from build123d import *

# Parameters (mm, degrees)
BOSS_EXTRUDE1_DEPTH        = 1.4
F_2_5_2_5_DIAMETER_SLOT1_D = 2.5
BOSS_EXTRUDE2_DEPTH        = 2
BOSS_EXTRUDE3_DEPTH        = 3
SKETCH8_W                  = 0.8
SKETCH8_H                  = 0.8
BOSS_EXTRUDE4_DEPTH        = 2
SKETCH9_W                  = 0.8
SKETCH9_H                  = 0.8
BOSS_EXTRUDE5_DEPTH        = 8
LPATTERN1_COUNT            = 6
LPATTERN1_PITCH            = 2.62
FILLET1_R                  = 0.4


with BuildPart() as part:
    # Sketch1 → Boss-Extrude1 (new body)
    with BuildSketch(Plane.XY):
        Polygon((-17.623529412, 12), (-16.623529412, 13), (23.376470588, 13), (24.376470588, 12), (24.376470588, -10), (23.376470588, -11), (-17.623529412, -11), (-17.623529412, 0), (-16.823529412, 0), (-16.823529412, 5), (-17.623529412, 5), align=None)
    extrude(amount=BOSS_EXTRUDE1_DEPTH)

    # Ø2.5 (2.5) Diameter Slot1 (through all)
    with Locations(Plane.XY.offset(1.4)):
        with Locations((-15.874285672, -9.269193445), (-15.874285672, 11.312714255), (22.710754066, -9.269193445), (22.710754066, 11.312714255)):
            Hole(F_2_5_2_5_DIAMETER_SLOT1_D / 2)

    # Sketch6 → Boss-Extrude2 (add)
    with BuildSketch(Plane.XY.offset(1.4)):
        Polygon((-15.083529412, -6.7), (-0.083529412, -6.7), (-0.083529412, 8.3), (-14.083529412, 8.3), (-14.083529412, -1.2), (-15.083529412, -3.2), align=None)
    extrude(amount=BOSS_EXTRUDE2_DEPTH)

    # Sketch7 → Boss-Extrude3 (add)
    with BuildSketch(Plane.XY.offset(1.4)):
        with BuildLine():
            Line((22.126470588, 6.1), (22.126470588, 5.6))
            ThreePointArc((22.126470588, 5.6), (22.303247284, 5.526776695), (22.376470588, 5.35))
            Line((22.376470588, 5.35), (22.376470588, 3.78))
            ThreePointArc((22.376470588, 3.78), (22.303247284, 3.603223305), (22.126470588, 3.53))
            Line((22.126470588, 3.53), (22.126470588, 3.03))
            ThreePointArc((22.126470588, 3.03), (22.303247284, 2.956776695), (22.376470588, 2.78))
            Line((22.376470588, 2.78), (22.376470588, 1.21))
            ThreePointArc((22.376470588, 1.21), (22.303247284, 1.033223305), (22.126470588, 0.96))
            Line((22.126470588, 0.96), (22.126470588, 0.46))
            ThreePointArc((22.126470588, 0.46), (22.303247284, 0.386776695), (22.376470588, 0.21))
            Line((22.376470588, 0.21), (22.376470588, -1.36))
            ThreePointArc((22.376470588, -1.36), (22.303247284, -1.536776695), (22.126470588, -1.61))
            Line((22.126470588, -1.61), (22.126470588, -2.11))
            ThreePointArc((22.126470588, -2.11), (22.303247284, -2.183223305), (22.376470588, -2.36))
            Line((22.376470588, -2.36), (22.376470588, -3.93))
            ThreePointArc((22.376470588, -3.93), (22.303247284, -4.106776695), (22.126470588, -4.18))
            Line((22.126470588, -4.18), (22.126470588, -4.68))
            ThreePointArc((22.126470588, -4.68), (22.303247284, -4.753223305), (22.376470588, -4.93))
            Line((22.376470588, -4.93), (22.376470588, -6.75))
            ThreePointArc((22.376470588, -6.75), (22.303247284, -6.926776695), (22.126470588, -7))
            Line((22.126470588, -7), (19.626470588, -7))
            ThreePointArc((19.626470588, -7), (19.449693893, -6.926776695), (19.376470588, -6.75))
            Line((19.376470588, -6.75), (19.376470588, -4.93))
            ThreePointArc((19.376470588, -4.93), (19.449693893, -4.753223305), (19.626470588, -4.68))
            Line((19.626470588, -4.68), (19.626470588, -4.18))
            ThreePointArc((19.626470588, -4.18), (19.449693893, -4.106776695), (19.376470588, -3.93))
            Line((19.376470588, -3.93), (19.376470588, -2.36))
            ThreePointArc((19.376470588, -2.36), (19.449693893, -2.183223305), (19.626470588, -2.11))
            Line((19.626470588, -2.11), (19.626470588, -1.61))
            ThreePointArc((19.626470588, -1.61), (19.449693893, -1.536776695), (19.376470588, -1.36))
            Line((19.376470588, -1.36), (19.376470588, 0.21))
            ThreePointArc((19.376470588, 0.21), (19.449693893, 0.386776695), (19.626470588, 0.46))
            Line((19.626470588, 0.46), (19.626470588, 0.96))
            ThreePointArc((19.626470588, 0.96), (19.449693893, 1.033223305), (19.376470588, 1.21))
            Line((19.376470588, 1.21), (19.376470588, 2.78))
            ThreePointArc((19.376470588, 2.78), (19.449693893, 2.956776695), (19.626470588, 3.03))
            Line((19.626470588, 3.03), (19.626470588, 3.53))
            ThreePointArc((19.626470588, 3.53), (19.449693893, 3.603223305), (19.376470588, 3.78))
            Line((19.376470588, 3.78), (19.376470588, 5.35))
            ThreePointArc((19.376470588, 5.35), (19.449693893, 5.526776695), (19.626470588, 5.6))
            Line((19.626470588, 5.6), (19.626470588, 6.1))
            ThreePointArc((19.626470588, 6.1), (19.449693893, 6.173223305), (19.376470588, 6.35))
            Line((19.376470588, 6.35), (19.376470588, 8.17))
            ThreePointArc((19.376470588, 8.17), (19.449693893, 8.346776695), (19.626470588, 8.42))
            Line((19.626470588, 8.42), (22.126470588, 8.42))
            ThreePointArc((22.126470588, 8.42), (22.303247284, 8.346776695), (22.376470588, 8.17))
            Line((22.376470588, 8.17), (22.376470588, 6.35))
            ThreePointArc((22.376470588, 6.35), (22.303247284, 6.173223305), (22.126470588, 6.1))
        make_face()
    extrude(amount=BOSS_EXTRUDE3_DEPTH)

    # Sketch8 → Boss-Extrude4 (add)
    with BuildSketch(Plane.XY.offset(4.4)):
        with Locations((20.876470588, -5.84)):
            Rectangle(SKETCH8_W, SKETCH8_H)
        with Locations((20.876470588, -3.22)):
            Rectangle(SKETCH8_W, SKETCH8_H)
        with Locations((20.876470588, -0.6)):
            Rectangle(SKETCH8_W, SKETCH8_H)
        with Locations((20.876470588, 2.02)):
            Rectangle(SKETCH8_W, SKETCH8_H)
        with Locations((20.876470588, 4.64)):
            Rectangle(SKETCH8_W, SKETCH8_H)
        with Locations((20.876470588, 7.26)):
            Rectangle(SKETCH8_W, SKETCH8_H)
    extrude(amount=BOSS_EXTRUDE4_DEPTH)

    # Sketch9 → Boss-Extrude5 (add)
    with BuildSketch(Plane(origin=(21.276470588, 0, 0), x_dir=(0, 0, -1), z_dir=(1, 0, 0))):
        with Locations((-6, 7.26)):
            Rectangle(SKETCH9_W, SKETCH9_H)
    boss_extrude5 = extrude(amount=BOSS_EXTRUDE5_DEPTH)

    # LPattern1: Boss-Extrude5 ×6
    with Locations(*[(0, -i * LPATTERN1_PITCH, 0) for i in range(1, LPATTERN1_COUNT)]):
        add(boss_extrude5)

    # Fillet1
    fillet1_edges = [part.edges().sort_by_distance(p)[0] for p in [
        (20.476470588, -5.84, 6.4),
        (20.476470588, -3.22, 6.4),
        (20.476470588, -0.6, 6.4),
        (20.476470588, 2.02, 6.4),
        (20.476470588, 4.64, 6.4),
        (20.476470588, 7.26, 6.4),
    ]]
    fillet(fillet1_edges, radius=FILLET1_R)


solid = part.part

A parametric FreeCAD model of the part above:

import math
import FreeCAD as App
import Part
import Sketcher


def edges_at(feature, points):
    """Names of the edges that pass closest to the given points."""
    edges = feature.Shape.Edges
    near = lambda p: min(range(len(edges)), key=lambda i: edges[i].distToShape(Part.Vertex(*p))[0])
    return sorted({f"Edge{near(p) + 1}" for p in points})


def add_polygon(sketch, points):
    """Adds a closed chain of lines whose ends are joined by coincident constraints."""
    first, n = sketch.GeometryCount, len(points)
    for a, b in zip(points, points[1:] + points[:1]):
        sketch.addGeometry(Part.LineSegment(App.Vector(*a, 0), App.Vector(*b, 0)), False)
    for i in range(n):
        sketch.addConstraint(Sketcher.Constraint("Coincident", first + i, 2, first + (i + 1) % n, 1))

doc = App.newDocument("Part")
body = doc.addObject("PartDesign::Body", "Body")

# Sketch on XY plane
sketch1 = body.newObject("Sketcher::SketchObject", "Sketch")
sketch1.AttachmentSupport = (doc.getObject("XY_Plane"), [""])
sketch1.MapMode = "FlatFace"
add_polygon(sketch1, [(-16.623529, 13), (-17.623529, 12), (-17.623529, 5), (-16.823529, 5), (-16.823529, 0), (-17.623529, 0), (-17.623529, -11), (23.376471, -11), (24.376471, -10), (24.376471, 12), (23.376471, 13)])  # lines 0-10
sketch1.addConstraint(Sketcher.Constraint("Vertical", 1))
sketch1.addConstraint(Sketcher.Constraint("Horizontal", 2))
sketch1.addConstraint(Sketcher.Constraint("Vertical", 3))
sketch1.addConstraint(Sketcher.Constraint("Horizontal", 4))
sketch1.addConstraint(Sketcher.Constraint("Vertical", 5))
sketch1.addConstraint(Sketcher.Constraint("Horizontal", 6))
sketch1.addConstraint(Sketcher.Constraint("Vertical", 8))
sketch1.addConstraint(Sketcher.Constraint("Horizontal", 10))
sketch1.addConstraint(Sketcher.Constraint("PointOnObject", 3, 2, -1))
sketch1.addConstraint(Sketcher.Constraint("Parallel", 0, 7))
sketch1.addConstraint(Sketcher.Constraint("Perpendicular", 7, 9))
sketch1.addConstraint(Sketcher.Constraint("Horizontal", 0, 2, 8, 2))
sketch1.addConstraint(Sketcher.Constraint("Vertical", 1, 2, 4, 2))
sketch1.addConstraint(Sketcher.Constraint("Vertical", 6, 2, 9, 2))
sketch1.addConstraint(Sketcher.Constraint("Equal", 0, 7))
sketch1.addConstraint(Sketcher.Constraint("DistanceX", 6, 1, 6, 2, 41.0))
sketch1.addConstraint(Sketcher.Constraint("DistanceX", 10, 2, 10, 1, 40.0))
sketch1.addConstraint(Sketcher.Constraint("DistanceY", 1, 2, 1, 1, 7.0))
sketch1.addConstraint(Sketcher.Constraint("DistanceY", 3, 2, 3, 1, 5.0))
sketch1.addConstraint(Sketcher.Constraint("DistanceY", 5, 2, 5, 1, 11.0))
sketch1.addConstraint(Sketcher.Constraint("DistanceX", 2, 1, 2, 2, 0.8))
sketch1.addConstraint(Sketcher.Constraint("DistanceX", 0, 2, -1, 1, 17.623529))
pad1 = body.newObject("PartDesign::Pad", "Pad")
pad1.Profile = sketch1
pad1.Length = 1.4

# Sketch on XY plane
sketch2 = body.newObject("Sketcher::SketchObject", "Sketch001")
sketch2.AttachmentSupport = (doc.getObject("XY_Plane"), [""])
sketch2.MapMode = "FlatFace"
sketch2.AttachmentOffset = App.Placement(App.Vector(0, 0, 1.4), App.Rotation())
sketch2.addGeometry(Part.Circle(App.Vector(-15.874286, -9.269193, 0), App.Vector(0, 0, 1), 1.25), False)
sketch2.addGeometry(Part.Circle(App.Vector(-15.874286, 11.312714, 0), App.Vector(0, 0, 1), 1.25), False)
sketch2.addGeometry(Part.Circle(App.Vector(22.710754, -9.269193, 0), App.Vector(0, 0, 1), 1.25), False)
sketch2.addGeometry(Part.Circle(App.Vector(22.710754, 11.312714, 0), App.Vector(0, 0, 1), 1.25), False)
sketch2.addConstraint(Sketcher.Constraint("Equal", 0, 1))
sketch2.addConstraint(Sketcher.Constraint("Equal", 1, 2))
sketch2.addConstraint(Sketcher.Constraint("Equal", 2, 3))
sketch2.addConstraint(Sketcher.Constraint("Horizontal", 0, 3, 2, 3))
sketch2.addConstraint(Sketcher.Constraint("Horizontal", 1, 3, 3, 3))
sketch2.addConstraint(Sketcher.Constraint("Vertical", 0, 3, 1, 3))
sketch2.addConstraint(Sketcher.Constraint("Vertical", 2, 3, 3, 3))
sketch2.addConstraint(Sketcher.Constraint("Diameter", 0, 2.5))
sketch2.addConstraint(Sketcher.Constraint("DistanceX", 0, 3, 2, 3, 38.58504))
sketch2.addConstraint(Sketcher.Constraint("DistanceX", 0, 3, -1, 1, 15.874286))
sketch2.addConstraint(Sketcher.Constraint("DistanceY", 0, 3, -1, 1, 9.269193))
sketch2.addConstraint(Sketcher.Constraint("DistanceY", -1, 1, 1, 3, 11.312714))
doc.recompute()
hole = body.newObject("PartDesign::Hole", "Hole")
hole.Profile = sketch2
hole.ThreadType = "None"
hole.Diameter = 2.5
hole.DepthType = "ThroughAll"

# Sketch on XY plane
sketch3 = body.newObject("Sketcher::SketchObject", "Sketch002")
sketch3.AttachmentSupport = (doc.getObject("XY_Plane"), [""])
sketch3.MapMode = "FlatFace"
sketch3.AttachmentOffset = App.Placement(App.Vector(0, 0, 1.4), App.Rotation())
add_polygon(sketch3, [(-15.083529, -6.7), (-0.083529, -6.7), (-0.083529, 8.3), (-14.083529, 8.3), (-14.083529, -1.2), (-15.083529, -3.2)])  # lines 0-5
sketch3.addConstraint(Sketcher.Constraint("Horizontal", 0))
sketch3.addConstraint(Sketcher.Constraint("Vertical", 1))
sketch3.addConstraint(Sketcher.Constraint("Horizontal", 2))
sketch3.addConstraint(Sketcher.Constraint("Vertical", 3))
sketch3.addConstraint(Sketcher.Constraint("Vertical", 5))
sketch3.addConstraint(Sketcher.Constraint("Equal", 0, 1))
sketch3.addConstraint(Sketcher.Constraint("DistanceX", 0, 1, 0, 2, 15.0))
sketch3.addConstraint(Sketcher.Constraint("DistanceX", 2, 2, 2, 1, 14.0))
sketch3.addConstraint(Sketcher.Constraint("DistanceY", 3, 2, 3, 1, 9.5))
sketch3.addConstraint(Sketcher.Constraint("DistanceY", 5, 2, 5, 1, 3.5))
sketch3.addConstraint(Sketcher.Constraint("DistanceY", 0, 2, -1, 1, 6.7))
sketch3.addConstraint(Sketcher.Constraint("DistanceX", 0, 2, -1, 1, 0.083529))
pad2 = body.newObject("PartDesign::Pad", "Pad001")
pad2.Profile = sketch3
pad2.Length = 2

# Sketch on XY plane
sketch4 = body.newObject("Sketcher::SketchObject", "Sketch003")
sketch4.AttachmentSupport = (doc.getObject("XY_Plane"), [""])
sketch4.MapMode = "FlatFace"
sketch4.AttachmentOffset = App.Placement(App.Vector(0, 0, 1.4), App.Rotation())
sketch4.addGeometry(Part.LineSegment(App.Vector(22.126471, 5.6, 0), App.Vector(22.126471, 6.1, 0)), False)
sketch4.addGeometry(Part.ArcOfCircle(Part.Circle(App.Vector(22.126471, 6.35, 0), App.Vector(0, 0, 1), 0.25), math.radians(-90), math.radians(0)), False)
sketch4.addGeometry(Part.LineSegment(App.Vector(22.376471, 6.35, 0), App.Vector(22.376471, 8.17, 0)), False)
sketch4.addGeometry(Part.ArcOfCircle(Part.Circle(App.Vector(22.126471, 8.17, 0), App.Vector(0, 0, 1), 0.25), math.radians(0), math.radians(90)), False)
sketch4.addGeometry(Part.LineSegment(App.Vector(22.126471, 8.42, 0), App.Vector(19.626471, 8.42, 0)), False)
sketch4.addGeometry(Part.ArcOfCircle(Part.Circle(App.Vector(19.626471, 8.17, 0), App.Vector(0, 0, 1), 0.25), math.radians(90), math.radians(180)), False)
sketch4.addGeometry(Part.LineSegment(App.Vector(19.376471, 8.17, 0), App.Vector(19.376471, 6.35, 0)), False)
sketch4.addGeometry(Part.ArcOfCircle(Part.Circle(App.Vector(19.626471, 6.35, 0), App.Vector(0, 0, 1), 0.25), math.radians(-180), math.radians(-90)), False)
sketch4.addGeometry(Part.LineSegment(App.Vector(19.626471, 6.1, 0), App.Vector(19.626471, 5.6, 0)), False)
sketch4.addGeometry(Part.ArcOfCircle(Part.Circle(App.Vector(19.626471, 5.35, 0), App.Vector(0, 0, 1), 0.25), math.radians(90), math.radians(180)), False)
sketch4.addGeometry(Part.LineSegment(App.Vector(19.376471, 5.35, 0), App.Vector(19.376471, 3.78, 0)), False)
sketch4.addGeometry(Part.ArcOfCircle(Part.Circle(App.Vector(19.626471, 3.78, 0), App.Vector(0, 0, 1), 0.25), math.radians(-180), math.radians(-90)), False)
sketch4.addGeometry(Part.LineSegment(App.Vector(19.626471, 3.53, 0), App.Vector(19.626471, 3.03, 0)), False)
sketch4.addGeometry(Part.ArcOfCircle(Part.Circle(App.Vector(19.626471, 2.78, 0), App.Vector(0, 0, 1), 0.25), math.radians(90), math.radians(180)), False)
sketch4.addGeometry(Part.LineSegment(App.Vector(19.376471, 2.78, 0), App.Vector(19.376471, 1.21, 0)), False)
sketch4.addGeometry(Part.ArcOfCircle(Part.Circle(App.Vector(19.626471, 1.21, 0), App.Vector(0, 0, 1), 0.25), math.radians(-180), math.radians(-90)), False)
sketch4.addGeometry(Part.LineSegment(App.Vector(19.626471, 0.96, 0), App.Vector(19.626471, 0.46, 0)), False)
sketch4.addGeometry(Part.ArcOfCircle(Part.Circle(App.Vector(19.626471, 0.21, 0), App.Vector(0, 0, 1), 0.25), math.radians(90), math.radians(180)), False)
sketch4.addGeometry(Part.LineSegment(App.Vector(19.376471, 0.21, 0), App.Vector(19.376471, -1.36, 0)), False)
sketch4.addGeometry(Part.ArcOfCircle(Part.Circle(App.Vector(19.626471, -1.36, 0), App.Vector(0, 0, 1), 0.25), math.radians(-180), math.radians(-90)), False)
sketch4.addGeometry(Part.LineSegment(App.Vector(19.626471, -1.61, 0), App.Vector(19.626471, -2.11, 0)), False)
sketch4.addGeometry(Part.ArcOfCircle(Part.Circle(App.Vector(19.626471, -2.36, 0), App.Vector(0, 0, 1), 0.25), math.radians(90), math.radians(180)), False)
sketch4.addGeometry(Part.LineSegment(App.Vector(19.376471, -2.36, 0), App.Vector(19.376471, -3.93, 0)), False)
sketch4.addGeometry(Part.ArcOfCircle(Part.Circle(App.Vector(19.626471, -3.93, 0), App.Vector(0, 0, 1), 0.25), math.radians(-180), math.radians(-90)), False)
sketch4.addGeometry(Part.LineSegment(App.Vector(19.626471, -4.18, 0), App.Vector(19.626471, -4.68, 0)), False)
sketch4.addGeometry(Part.ArcOfCircle(Part.Circle(App.Vector(19.626471, -4.93, 0), App.Vector(0, 0, 1), 0.25), math.radians(90), math.radians(180)), False)
sketch4.addGeometry(Part.LineSegment(App.Vector(19.376471, -4.93, 0), App.Vector(19.376471, -6.75, 0)), False)
sketch4.addGeometry(Part.ArcOfCircle(Part.Circle(App.Vector(19.626471, -6.75, 0), App.Vector(0, 0, 1), 0.25), math.radians(-180), math.radians(-90)), False)
sketch4.addGeometry(Part.LineSegment(App.Vector(19.626471, -7, 0), App.Vector(22.126471, -7, 0)), False)
sketch4.addGeometry(Part.ArcOfCircle(Part.Circle(App.Vector(22.126471, -6.75, 0), App.Vector(0, 0, 1), 0.25), math.radians(-90), math.radians(0)), False)
sketch4.addGeometry(Part.LineSegment(App.Vector(22.376471, -6.75, 0), App.Vector(22.376471, -4.93, 0)), False)
sketch4.addGeometry(Part.ArcOfCircle(Part.Circle(App.Vector(22.126471, -4.93, 0), App.Vector(0, 0, 1), 0.25), math.radians(0), math.radians(90)), False)
sketch4.addGeometry(Part.LineSegment(App.Vector(22.126471, -4.68, 0), App.Vector(22.126471, -4.18, 0)), False)
sketch4.addGeometry(Part.ArcOfCircle(Part.Circle(App.Vector(22.126471, -3.93, 0), App.Vector(0, 0, 1), 0.25), math.radians(-90), math.radians(0)), False)
sketch4.addGeometry(Part.LineSegment(App.Vector(22.376471, -3.93, 0), App.Vector(22.376471, -2.36, 0)), False)
sketch4.addGeometry(Part.ArcOfCircle(Part.Circle(App.Vector(22.126471, -2.36, 0), App.Vector(0, 0, 1), 0.25), math.radians(0), math.radians(90)), False)
sketch4.addGeometry(Part.LineSegment(App.Vector(22.126471, -2.11, 0), App.Vector(22.126471, -1.61, 0)), False)
sketch4.addGeometry(Part.ArcOfCircle(Part.Circle(App.Vector(22.126471, -1.36, 0), App.Vector(0, 0, 1), 0.25), math.radians(-90), math.radians(0)), False)
sketch4.addGeometry(Part.LineSegment(App.Vector(22.376471, -1.36, 0), App.Vector(22.376471, 0.21, 0)), False)
sketch4.addGeometry(Part.ArcOfCircle(Part.Circle(App.Vector(22.126471, 0.21, 0), App.Vector(0, 0, 1), 0.25), math.radians(0), math.radians(90)), False)
sketch4.addGeometry(Part.LineSegment(App.Vector(22.126471, 0.46, 0), App.Vector(22.126471, 0.96, 0)), False)
sketch4.addGeometry(Part.ArcOfCircle(Part.Circle(App.Vector(22.126471, 1.21, 0), App.Vector(0, 0, 1), 0.25), math.radians(-90), math.radians(0)), False)
sketch4.addGeometry(Part.LineSegment(App.Vector(22.376471, 1.21, 0), App.Vector(22.376471, 2.78, 0)), False)
sketch4.addGeometry(Part.ArcOfCircle(Part.Circle(App.Vector(22.126471, 2.78, 0), App.Vector(0, 0, 1), 0.25), math.radians(0), math.radians(90)), False)
sketch4.addGeometry(Part.LineSegment(App.Vector(22.126471, 3.03, 0), App.Vector(22.126471, 3.53, 0)), False)
sketch4.addGeometry(Part.ArcOfCircle(Part.Circle(App.Vector(22.126471, 3.78, 0), App.Vector(0, 0, 1), 0.25), math.radians(-90), math.radians(0)), False)
sketch4.addGeometry(Part.LineSegment(App.Vector(22.376471, 3.78, 0), App.Vector(22.376471, 5.35, 0)), False)
sketch4.addGeometry(Part.ArcOfCircle(Part.Circle(App.Vector(22.126471, 5.35, 0), App.Vector(0, 0, 1), 0.25), math.radians(0), math.radians(90)), False)
sketch4.addConstraint(Sketcher.Constraint("Coincident", 0, 2, 1, 1))
sketch4.addConstraint(Sketcher.Constraint("Tangent", 1, 2, 2, 1))
sketch4.addConstraint(Sketcher.Constraint("Tangent", 2, 2, 3, 1))
sketch4.addConstraint(Sketcher.Constraint("Tangent", 3, 2, 4, 1))
sketch4.addConstraint(Sketcher.Constraint("Tangent", 4, 2, 5, 1))
sketch4.addConstraint(Sketcher.Constraint("Tangent", 5, 2, 6, 1))
sketch4.addConstraint(Sketcher.Constraint("Tangent", 6, 2, 7, 1))
sketch4.addConstraint(Sketcher.Constraint("Coincident", 7, 2, 8, 1))
sketch4.addConstraint(Sketcher.Constraint("Coincident", 8, 2, 9, 1))
sketch4.addConstraint(Sketcher.Constraint("Tangent", 9, 2, 10, 1))
sketch4.addConstraint(Sketcher.Constraint("Tangent", 10, 2, 11, 1))
sketch4.addConstraint(Sketcher.Constraint("Coincident", 11, 2, 12, 1))
sketch4.addConstraint(Sketcher.Constraint("Coincident", 12, 2, 13, 1))
sketch4.addConstraint(Sketcher.Constraint("Tangent", 13, 2, 14, 1))
sketch4.addConstraint(Sketcher.Constraint("Tangent", 14, 2, 15, 1))
sketch4.addConstraint(Sketcher.Constraint("Coincident", 15, 2, 16, 1))
sketch4.addConstraint(Sketcher.Constraint("Coincident", 16, 2, 17, 1))
sketch4.addConstraint(Sketcher.Constraint("Tangent", 17, 2, 18, 1))
sketch4.addConstraint(Sketcher.Constraint("Tangent", 18, 2, 19, 1))
sketch4.addConstraint(Sketcher.Constraint("Coincident", 19, 2, 20, 1))
sketch4.addConstraint(Sketcher.Constraint("Coincident", 20, 2, 21, 1))
sketch4.addConstraint(Sketcher.Constraint("Tangent", 21, 2, 22, 1))
sketch4.addConstraint(Sketcher.Constraint("Tangent", 22, 2, 23, 1))
sketch4.addConstraint(Sketcher.Constraint("Coincident", 23, 2, 24, 1))
sketch4.addConstraint(Sketcher.Constraint("Coincident", 24, 2, 25, 1))
sketch4.addConstraint(Sketcher.Constraint("Tangent", 25, 2, 26, 1))
sketch4.addConstraint(Sketcher.Constraint("Tangent", 26, 2, 27, 1))
sketch4.addConstraint(Sketcher.Constraint("Tangent", 27, 2, 28, 1))
sketch4.addConstraint(Sketcher.Constraint("Tangent", 28, 2, 29, 1))
sketch4.addConstraint(Sketcher.Constraint("Tangent", 29, 2, 30, 1))
sketch4.addConstraint(Sketcher.Constraint("Tangent", 30, 2, 31, 1))
sketch4.addConstraint(Sketcher.Constraint("Coincident", 31, 2, 32, 1))
sketch4.addConstraint(Sketcher.Constraint("Coincident", 32, 2, 33, 1))
sketch4.addConstraint(Sketcher.Constraint("Tangent", 33, 2, 34, 1))
sketch4.addConstraint(Sketcher.Constraint("Tangent", 34, 2, 35, 1))
sketch4.addConstraint(Sketcher.Constraint("Coincident", 35, 2, 36, 1))
sketch4.addConstraint(Sketcher.Constraint("Coincident", 36, 2, 37, 1))
sketch4.addConstraint(Sketcher.Constraint("Tangent", 37, 2, 38, 1))
sketch4.addConstraint(Sketcher.Constraint("Tangent", 38, 2, 39, 1))
sketch4.addConstraint(Sketcher.Constraint("Coincident", 39, 2, 40, 1))
sketch4.addConstraint(Sketcher.Constraint("Coincident", 40, 2, 41, 1))
sketch4.addConstraint(Sketcher.Constraint("Tangent", 41, 2, 42, 1))
sketch4.addConstraint(Sketcher.Constraint("Tangent", 42, 2, 43, 1))
sketch4.addConstraint(Sketcher.Constraint("Coincident", 43, 2, 44, 1))
sketch4.addConstraint(Sketcher.Constraint("Coincident", 44, 2, 45, 1))
sketch4.addConstraint(Sketcher.Constraint("Tangent", 45, 2, 46, 1))
sketch4.addConstraint(Sketcher.Constraint("Tangent", 46, 2, 47, 1))
sketch4.addConstraint(Sketcher.Constraint("Coincident", 47, 2, 0, 1))
sketch4.addConstraint(Sketcher.Constraint("Vertical", 0))
sketch4.addConstraint(Sketcher.Constraint("Vertical", 2))
sketch4.addConstraint(Sketcher.Constraint("Horizontal", 4))
sketch4.addConstraint(Sketcher.Constraint("Vertical", 6))
sketch4.addConstraint(Sketcher.Constraint("Vertical", 8))
sketch4.addConstraint(Sketcher.Constraint("Vertical", 10))
sketch4.addConstraint(Sketcher.Constraint("Vertical", 12))
sketch4.addConstraint(Sketcher.Constraint("Vertical", 14))
sketch4.addConstraint(Sketcher.Constraint("Vertical", 16))
sketch4.addConstraint(Sketcher.Constraint("Vertical", 18))
sketch4.addConstraint(Sketcher.Constraint("Vertical", 20))
sketch4.addConstraint(Sketcher.Constraint("Vertical", 22))
sketch4.addConstraint(Sketcher.Constraint("Vertical", 24))
sketch4.addConstraint(Sketcher.Constraint("Vertical", 26))
sketch4.addConstraint(Sketcher.Constraint("Horizontal", 28))
sketch4.addConstraint(Sketcher.Constraint("Vertical", 30))
sketch4.addConstraint(Sketcher.Constraint("Vertical", 32))
sketch4.addConstraint(Sketcher.Constraint("Vertical", 34))
sketch4.addConstraint(Sketcher.Constraint("Vertical", 36))
sketch4.addConstraint(Sketcher.Constraint("Vertical", 38))
sketch4.addConstraint(Sketcher.Constraint("Vertical", 40))
sketch4.addConstraint(Sketcher.Constraint("Vertical", 42))
sketch4.addConstraint(Sketcher.Constraint("Vertical", 44))
sketch4.addConstraint(Sketcher.Constraint("Vertical", 46))
sketch4.addConstraint(Sketcher.Constraint("Equal", 1, 3))
sketch4.addConstraint(Sketcher.Constraint("Equal", 3, 5))
sketch4.addConstraint(Sketcher.Constraint("Equal", 5, 7))
sketch4.addConstraint(Sketcher.Constraint("Equal", 7, 9))
sketch4.addConstraint(Sketcher.Constraint("Equal", 9, 11))
sketch4.addConstraint(Sketcher.Constraint("Equal", 11, 13))
sketch4.addConstraint(Sketcher.Constraint("Equal", 13, 15))
sketch4.addConstraint(Sketcher.Constraint("Equal", 15, 17))
sketch4.addConstraint(Sketcher.Constraint("Equal", 17, 19))
sketch4.addConstraint(Sketcher.Constraint("Equal", 19, 21))
sketch4.addConstraint(Sketcher.Constraint("Equal", 21, 23))
sketch4.addConstraint(Sketcher.Constraint("Equal", 23, 25))
sketch4.addConstraint(Sketcher.Constraint("Equal", 25, 27))
sketch4.addConstraint(Sketcher.Constraint("Equal", 27, 29))
sketch4.addConstraint(Sketcher.Constraint("Equal", 29, 31))
sketch4.addConstraint(Sketcher.Constraint("Equal", 31, 33))
sketch4.addConstraint(Sketcher.Constraint("Equal", 33, 35))
sketch4.addConstraint(Sketcher.Constraint("Equal", 35, 37))
sketch4.addConstraint(Sketcher.Constraint("Equal", 37, 39))
sketch4.addConstraint(Sketcher.Constraint("Equal", 39, 41))
sketch4.addConstraint(Sketcher.Constraint("Equal", 41, 43))
sketch4.addConstraint(Sketcher.Constraint("Equal", 43, 45))
sketch4.addConstraint(Sketcher.Constraint("Equal", 45, 47))
sketch4.addConstraint(Sketcher.Constraint("Horizontal", 1, 3, 7, 3))
sketch4.addConstraint(Sketcher.Constraint("Horizontal", 25, 3, 31, 3))
sketch4.addConstraint(Sketcher.Constraint("Horizontal", 23, 3, 33, 3))
sketch4.addConstraint(Sketcher.Constraint("Horizontal", 21, 3, 35, 3))
sketch4.addConstraint(Sketcher.Constraint("Horizontal", 19, 3, 37, 3))
sketch4.addConstraint(Sketcher.Constraint("Horizontal", 17, 3, 39, 3))
sketch4.addConstraint(Sketcher.Constraint("Horizontal", 15, 3, 41, 3))
sketch4.addConstraint(Sketcher.Constraint("Horizontal", 13, 3, 43, 3))
sketch4.addConstraint(Sketcher.Constraint("Horizontal", 11, 3, 45, 3))
sketch4.addConstraint(Sketcher.Constraint("Horizontal", 9, 3, 47, 3))
sketch4.addConstraint(Sketcher.Constraint("Vertical", 7, 3, 9, 3))
sketch4.addConstraint(Sketcher.Constraint("Vertical", 11, 3, 13, 3))
sketch4.addConstraint(Sketcher.Constraint("Vertical", 15, 3, 17, 3))
sketch4.addConstraint(Sketcher.Constraint("Vertical", 19, 3, 21, 3))
sketch4.addConstraint(Sketcher.Constraint("Vertical", 23, 3, 25, 3))
sketch4.addConstraint(Sketcher.Constraint("Vertical", 3, 3, 29, 3))
sketch4.addConstraint(Sketcher.Constraint("Vertical", 31, 3, 33, 3))
sketch4.addConstraint(Sketcher.Constraint("Vertical", 35, 3, 37, 3))
sketch4.addConstraint(Sketcher.Constraint("Vertical", 39, 3, 41, 3))
sketch4.addConstraint(Sketcher.Constraint("Vertical", 43, 3, 45, 3))
sketch4.addConstraint(Sketcher.Constraint("Vertical", 47, 3, 0, 2))
sketch4.addConstraint(Sketcher.Constraint("Vertical", 4, 2, 7, 2))
sketch4.addConstraint(Sketcher.Constraint("Vertical", 8, 2, 11, 2))
sketch4.addConstraint(Sketcher.Constraint("Vertical", 12, 2, 15, 2))
sketch4.addConstraint(Sketcher.Constraint("Vertical", 16, 2, 19, 2))
sketch4.addConstraint(Sketcher.Constraint("Vertical", 20, 2, 23, 2))
sketch4.addConstraint(Sketcher.Constraint("Vertical", 28, 2, 31, 2))
sketch4.addConstraint(Sketcher.Constraint("Vertical", 32, 2, 35, 2))
sketch4.addConstraint(Sketcher.Constraint("Vertical", 36, 2, 39, 2))
sketch4.addConstraint(Sketcher.Constraint("Vertical", 40, 2, 43, 2))
sketch4.addConstraint(Sketcher.Constraint("Equal", 8, 12))
sketch4.addConstraint(Sketcher.Constraint("Equal", 10, 14))
sketch4.addConstraint(Sketcher.Constraint("Equal", 12, 16))
sketch4.addConstraint(Sketcher.Constraint("Equal", 14, 18))
sketch4.addConstraint(Sketcher.Constraint("Equal", 16, 20))
sketch4.addConstraint(Sketcher.Constraint("Equal", 18, 22))
sketch4.addConstraint(Sketcher.Constraint("Equal", 20, 24))
sketch4.addConstraint(Sketcher.Constraint("Equal", 6, 26))
sketch4.addConstraint(Sketcher.Constraint("Radius", 1, 0.25))
sketch4.addConstraint(Sketcher.Constraint("DistanceX", 4, 2, 4, 1, 2.5))
sketch4.addConstraint(Sketcher.Constraint("DistanceY", 0, 1, 0, 2, 0.5))
sketch4.addConstraint(Sketcher.Constraint("DistanceY", 27, 2, -1, 1, 7.0))
sketch4.addConstraint(Sketcher.Constraint("DistanceY", 2, 1, 2, 2, 1.82))
sketch4.addConstraint(Sketcher.Constraint("DistanceY", 10, 2, 10, 1, 1.57))
sketch4.addConstraint(Sketcher.Constraint("DistanceX", -1, 1, 1, 3, 22.126471))
pad3 = body.newObject("PartDesign::Pad", "Pad002")
pad3.Profile = sketch4
pad3.Length = 3

# Sketch on XY plane
sketch5 = body.newObject("Sketcher::SketchObject", "Sketch004")
sketch5.AttachmentSupport = (doc.getObject("XY_Plane"), [""])
sketch5.MapMode = "FlatFace"
sketch5.AttachmentOffset = App.Placement(App.Vector(0, 0, 4.4), App.Rotation())
add_polygon(sketch5, [(20.476471, -5.44), (20.476471, -6.24), (21.276471, -6.24), (21.276471, -5.44)])  # lines 0-3
add_polygon(sketch5, [(20.476471, -2.82), (20.476471, -3.62), (21.276471, -3.62), (21.276471, -2.82)])  # lines 4-7
add_polygon(sketch5, [(20.476471, -0.2), (20.476471, -1), (21.276471, -1), (21.276471, -0.2)])  # lines 8-11
add_polygon(sketch5, [(20.476471, 2.42), (20.476471, 1.62), (21.276471, 1.62), (21.276471, 2.42)])  # lines 12-15
add_polygon(sketch5, [(20.476471, 5.04), (20.476471, 4.24), (21.276471, 4.24), (21.276471, 5.04)])  # lines 16-19
add_polygon(sketch5, [(20.476471, 7.66), (20.476471, 6.86), (21.276471, 6.86), (21.276471, 7.66)])  # lines 20-23
sketch5.addConstraint(Sketcher.Constraint("Vertical", 0))
sketch5.addConstraint(Sketcher.Constraint("Horizontal", 1))
sketch5.addConstraint(Sketcher.Constraint("Vertical", 2))
sketch5.addConstraint(Sketcher.Constraint("Horizontal", 3))
sketch5.addConstraint(Sketcher.Constraint("Vertical", 4))
sketch5.addConstraint(Sketcher.Constraint("Horizontal", 5))
sketch5.addConstraint(Sketcher.Constraint("Vertical", 6))
sketch5.addConstraint(Sketcher.Constraint("Horizontal", 7))
sketch5.addConstraint(Sketcher.Constraint("Vertical", 8))
sketch5.addConstraint(Sketcher.Constraint("Horizontal", 9))
sketch5.addConstraint(Sketcher.Constraint("Vertical", 10))
sketch5.addConstraint(Sketcher.Constraint("Horizontal", 11))
sketch5.addConstraint(Sketcher.Constraint("Vertical", 12))
sketch5.addConstraint(Sketcher.Constraint("Horizontal", 13))
sketch5.addConstraint(Sketcher.Constraint("Vertical", 14))
sketch5.addConstraint(Sketcher.Constraint("Horizontal", 15))
sketch5.addConstraint(Sketcher.Constraint("Vertical", 16))
sketch5.addConstraint(Sketcher.Constraint("Horizontal", 17))
sketch5.addConstraint(Sketcher.Constraint("Vertical", 18))
sketch5.addConstraint(Sketcher.Constraint("Horizontal", 19))
sketch5.addConstraint(Sketcher.Constraint("Vertical", 20))
sketch5.addConstraint(Sketcher.Constraint("Horizontal", 21))
sketch5.addConstraint(Sketcher.Constraint("Vertical", 22))
sketch5.addConstraint(Sketcher.Constraint("Horizontal", 23))
sketch5.addConstraint(Sketcher.Constraint("Vertical", 3, 2, 4, 2))
sketch5.addConstraint(Sketcher.Constraint("Vertical", 2, 2, 5, 2))
sketch5.addConstraint(Sketcher.Constraint("Vertical", 7, 2, 8, 2))
sketch5.addConstraint(Sketcher.Constraint("Vertical", 6, 2, 9, 2))
sketch5.addConstraint(Sketcher.Constraint("Vertical", 11, 2, 12, 2))
sketch5.addConstraint(Sketcher.Constraint("Vertical", 10, 2, 13, 2))
sketch5.addConstraint(Sketcher.Constraint("Vertical", 15, 2, 16, 2))
sketch5.addConstraint(Sketcher.Constraint("Vertical", 14, 2, 17, 2))
sketch5.addConstraint(Sketcher.Constraint("Vertical", 19, 2, 20, 2))
sketch5.addConstraint(Sketcher.Constraint("Vertical", 18, 2, 21, 2))
sketch5.addConstraint(Sketcher.Constraint("Equal", 23, 0))
sketch5.addConstraint(Sketcher.Constraint("Equal", 2, 4))
sketch5.addConstraint(Sketcher.Constraint("Equal", 6, 8))
sketch5.addConstraint(Sketcher.Constraint("Equal", 10, 12))
sketch5.addConstraint(Sketcher.Constraint("Equal", 14, 16))
sketch5.addConstraint(Sketcher.Constraint("Equal", 18, 20))
sketch5.addConstraint(Sketcher.Constraint("DistanceX", 1, 1, 1, 2, 0.8))
sketch5.addConstraint(Sketcher.Constraint("DistanceY", 8, 2, -1, 1, 1.0))
sketch5.addConstraint(Sketcher.Constraint("DistanceY", 0, 2, -1, 1, 6.24))
sketch5.addConstraint(Sketcher.Constraint("DistanceY", 4, 2, -1, 1, 3.62))
sketch5.addConstraint(Sketcher.Constraint("DistanceY", -1, 1, 12, 2, 1.62))
sketch5.addConstraint(Sketcher.Constraint("DistanceY", -1, 1, 16, 2, 4.24))
sketch5.addConstraint(Sketcher.Constraint("DistanceY", -1, 1, 20, 2, 6.86))
sketch5.addConstraint(Sketcher.Constraint("DistanceX", -1, 1, 0, 2, 20.476471))
pad4 = body.newObject("PartDesign::Pad", "Pad003")
pad4.Profile = sketch5
pad4.Length = 2

# Sketch on YZ plane
sketch6 = body.newObject("Sketcher::SketchObject", "Sketch005")
sketch6.AttachmentSupport = (doc.getObject("YZ_Plane"), [""])
sketch6.MapMode = "FlatFace"
sketch6.AttachmentOffset = App.Placement(App.Vector(0, 0, 21.276471), App.Rotation())
add_polygon(sketch6, [(7.66, 6.4), (6.86, 6.4), (6.86, 5.6), (7.66, 5.6)])  # lines 0-3
sketch6.addConstraint(Sketcher.Constraint("Horizontal", 0))
sketch6.addConstraint(Sketcher.Constraint("Vertical", 1))
sketch6.addConstraint(Sketcher.Constraint("Horizontal", 2))
sketch6.addConstraint(Sketcher.Constraint("Vertical", 3))
sketch6.addConstraint(Sketcher.Constraint("Equal", 2, 1))
sketch6.addConstraint(Sketcher.Constraint("DistanceX", 0, 2, 0, 1, 0.8))
sketch6.addConstraint(Sketcher.Constraint("DistanceY", -1, 1, 0, 2, 6.4))
sketch6.addConstraint(Sketcher.Constraint("DistanceX", -1, 1, 0, 2, 6.86))
pad5 = body.newObject("PartDesign::Pad", "Pad004")
pad5.Profile = sketch6
pad5.Length = 8
doc.recompute()

linearpattern = body.newObject("PartDesign::LinearPattern", "LinearPattern")
linearpattern.Originals = [pad5]
linearpattern.Direction = (doc.getObject("Y_Axis"), [""])
linearpattern.Mode = "offset"
linearpattern.Offset = 2.62
linearpattern.Occurrences = 6
linearpattern.Reversed = True
body.Tip = linearpattern
doc.recompute()

fillet = body.newObject("PartDesign::Fillet", "Fillet")
fillet.Base = (linearpattern, edges_at(linearpattern, [
    (20.476, -5.84, 6.4),
    (20.476, -3.22, 6.4),
    (20.476, -0.6, 6.4),
    (20.476, 2.02, 6.4),
    (20.476, 4.64, 6.4),
    (20.476, 7.26, 6.4),
]))
fillet.Radius = 0.4

doc.recompute()
